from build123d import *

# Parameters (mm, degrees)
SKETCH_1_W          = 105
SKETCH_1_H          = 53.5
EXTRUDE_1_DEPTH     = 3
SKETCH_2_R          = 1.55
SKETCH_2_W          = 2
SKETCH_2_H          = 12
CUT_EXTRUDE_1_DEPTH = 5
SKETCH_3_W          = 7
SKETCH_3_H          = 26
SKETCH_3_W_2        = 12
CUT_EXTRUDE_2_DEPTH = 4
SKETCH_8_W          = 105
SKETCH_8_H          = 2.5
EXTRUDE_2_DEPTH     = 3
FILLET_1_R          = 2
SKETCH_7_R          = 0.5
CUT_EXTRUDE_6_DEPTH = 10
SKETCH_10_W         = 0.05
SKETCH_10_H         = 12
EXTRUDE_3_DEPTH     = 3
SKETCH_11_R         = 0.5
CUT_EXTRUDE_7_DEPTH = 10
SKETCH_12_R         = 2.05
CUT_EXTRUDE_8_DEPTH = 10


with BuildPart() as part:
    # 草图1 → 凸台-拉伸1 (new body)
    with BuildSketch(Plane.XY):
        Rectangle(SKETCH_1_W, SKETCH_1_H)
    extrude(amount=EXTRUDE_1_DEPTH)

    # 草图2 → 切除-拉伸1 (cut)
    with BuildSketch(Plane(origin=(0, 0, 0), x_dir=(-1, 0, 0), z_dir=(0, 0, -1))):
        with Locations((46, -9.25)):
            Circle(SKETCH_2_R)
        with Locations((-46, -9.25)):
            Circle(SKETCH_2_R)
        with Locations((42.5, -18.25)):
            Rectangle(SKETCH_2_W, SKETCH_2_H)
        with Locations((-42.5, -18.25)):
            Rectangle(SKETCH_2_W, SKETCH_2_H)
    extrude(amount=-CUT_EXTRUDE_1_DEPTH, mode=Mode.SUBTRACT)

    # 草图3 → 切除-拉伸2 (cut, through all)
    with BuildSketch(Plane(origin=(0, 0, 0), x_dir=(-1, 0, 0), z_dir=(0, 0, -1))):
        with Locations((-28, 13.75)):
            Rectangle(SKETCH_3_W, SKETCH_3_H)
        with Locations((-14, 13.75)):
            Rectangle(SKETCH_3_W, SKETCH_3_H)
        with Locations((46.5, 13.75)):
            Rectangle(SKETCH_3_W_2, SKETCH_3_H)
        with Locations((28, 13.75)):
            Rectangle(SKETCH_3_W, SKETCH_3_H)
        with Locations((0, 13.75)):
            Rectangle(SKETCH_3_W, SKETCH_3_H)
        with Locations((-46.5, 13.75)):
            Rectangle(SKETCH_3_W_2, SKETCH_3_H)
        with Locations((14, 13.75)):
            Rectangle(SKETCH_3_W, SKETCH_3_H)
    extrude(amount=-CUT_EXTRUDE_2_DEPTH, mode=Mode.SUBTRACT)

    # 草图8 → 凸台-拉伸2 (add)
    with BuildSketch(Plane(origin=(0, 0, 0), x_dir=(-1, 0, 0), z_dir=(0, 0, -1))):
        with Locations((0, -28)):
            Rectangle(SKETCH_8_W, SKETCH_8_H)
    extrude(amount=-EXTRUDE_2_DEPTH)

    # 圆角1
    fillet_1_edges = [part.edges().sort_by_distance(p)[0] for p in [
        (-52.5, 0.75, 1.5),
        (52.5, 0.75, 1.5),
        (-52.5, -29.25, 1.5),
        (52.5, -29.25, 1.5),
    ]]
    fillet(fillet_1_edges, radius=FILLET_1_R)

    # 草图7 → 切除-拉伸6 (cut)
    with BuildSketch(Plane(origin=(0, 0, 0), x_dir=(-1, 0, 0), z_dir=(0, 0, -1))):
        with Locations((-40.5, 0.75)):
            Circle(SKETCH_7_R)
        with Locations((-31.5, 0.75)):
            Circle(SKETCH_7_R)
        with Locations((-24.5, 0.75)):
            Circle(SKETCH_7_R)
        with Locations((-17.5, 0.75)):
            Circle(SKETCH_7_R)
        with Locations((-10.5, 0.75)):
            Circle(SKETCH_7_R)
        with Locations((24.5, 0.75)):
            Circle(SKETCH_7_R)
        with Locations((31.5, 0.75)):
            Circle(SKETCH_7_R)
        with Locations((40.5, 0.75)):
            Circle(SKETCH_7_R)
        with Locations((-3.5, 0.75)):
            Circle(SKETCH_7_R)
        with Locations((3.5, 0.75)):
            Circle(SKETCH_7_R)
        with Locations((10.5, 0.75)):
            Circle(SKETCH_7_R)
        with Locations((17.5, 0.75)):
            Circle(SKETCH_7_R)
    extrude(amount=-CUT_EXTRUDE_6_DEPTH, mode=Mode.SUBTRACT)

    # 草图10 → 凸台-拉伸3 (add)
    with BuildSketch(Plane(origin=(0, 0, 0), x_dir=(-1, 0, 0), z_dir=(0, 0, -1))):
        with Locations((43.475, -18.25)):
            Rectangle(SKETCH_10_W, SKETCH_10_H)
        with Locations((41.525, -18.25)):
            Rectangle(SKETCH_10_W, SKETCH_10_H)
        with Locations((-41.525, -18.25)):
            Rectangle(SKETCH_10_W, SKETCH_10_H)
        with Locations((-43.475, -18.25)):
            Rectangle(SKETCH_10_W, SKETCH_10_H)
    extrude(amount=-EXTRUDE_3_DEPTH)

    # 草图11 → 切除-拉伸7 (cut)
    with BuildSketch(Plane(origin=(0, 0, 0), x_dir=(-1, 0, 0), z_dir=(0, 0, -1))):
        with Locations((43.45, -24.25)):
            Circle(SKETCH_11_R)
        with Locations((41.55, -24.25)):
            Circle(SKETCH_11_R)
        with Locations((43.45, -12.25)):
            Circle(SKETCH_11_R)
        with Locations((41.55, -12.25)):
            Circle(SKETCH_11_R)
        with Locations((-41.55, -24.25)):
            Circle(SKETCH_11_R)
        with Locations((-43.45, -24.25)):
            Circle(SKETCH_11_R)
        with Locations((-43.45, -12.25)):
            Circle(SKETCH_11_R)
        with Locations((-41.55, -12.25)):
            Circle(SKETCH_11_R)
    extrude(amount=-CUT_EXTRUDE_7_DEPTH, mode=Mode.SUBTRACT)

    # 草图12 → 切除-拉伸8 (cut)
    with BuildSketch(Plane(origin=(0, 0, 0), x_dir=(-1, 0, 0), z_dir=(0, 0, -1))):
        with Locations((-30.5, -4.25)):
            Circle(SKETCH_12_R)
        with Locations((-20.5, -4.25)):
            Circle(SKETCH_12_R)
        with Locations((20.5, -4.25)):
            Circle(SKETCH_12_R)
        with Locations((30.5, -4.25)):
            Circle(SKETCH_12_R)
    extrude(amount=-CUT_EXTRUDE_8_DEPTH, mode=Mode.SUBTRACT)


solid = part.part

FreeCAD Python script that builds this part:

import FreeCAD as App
import Part
import Sketcher

V = App.Vector


def edges_at(feature, points):
    """Names of the edges that pass closest to the given points."""
    edges = feature.Shape.Edges
    near = lambda p: min(range(len(edges)), key=lambda i: edges[i].distToShape(Part.Vertex(*p))[0])
    return sorted({f"Edge{near(p) + 1}" for p in points})


def add_polygon(sketch, points):
    """Adds a closed chain of lines whose ends are joined by coincident constraints."""
    first, n = sketch.GeometryCount, len(points)
    for a, b in zip(points, points[1:] + points[:1]):
        sketch.addGeometry(Part.LineSegment(App.Vector(*a, 0), App.Vector(*b, 0)), False)
    for i in range(n):
        sketch.addConstraint(Sketcher.Constraint("Coincident", first + i, 2, first + (i + 1) % n, 1))

doc = App.newDocument("Part")
body = doc.addObject("PartDesign::Body", "Body")

# Sketch on XY plane
sketch1 = body.newObject("Sketcher::SketchObject", "Sketch")
sketch1.AttachmentSupport = (doc.getObject("XY_Plane"), [""])
sketch1.MapMode = "FlatFace"
add_polygon(sketch1, [(-52, 27), (-52, -27), (52, -27), (52, 27)])  # lines 0-3
sketch1.addConstraint(Sketcher.Constraint("Vertical", 0))
sketch1.addConstraint(Sketcher.Constraint("Horizontal", 1))
sketch1.addConstraint(Sketcher.Constraint("Vertical", 2))
sketch1.addConstraint(Sketcher.Constraint("Horizontal", 3))
sketch1.addConstraint(Sketcher.Constraint("Symmetric", 0, 2, 2, 2, -1, 1))
sketch1.addConstraint(Sketcher.Constraint("DistanceX", 1, 1, 1, 2, 105.0))
sketch1.addConstraint(Sketcher.Constraint("DistanceY", 0, 2, 0, 1, 53.5))
pad1 = body.newObject("PartDesign::Pad", "Pad")
pad1.Profile = sketch1
pad1.Length = 3

# Sketch on XY plane
sketch2 = body.newObject("Sketcher::SketchObject", "Sketch001")
sketch2.AttachmentSupport = (doc.getObject("XY_Plane"), [""])
sketch2.MapMode = "FlatFace"
sketch2.addGeometry(Part.Circle(V(-46, -9.2, 0), V(0, 0, 1), 1.6), False)  # 0
sketch2.addGeometry(Part.Circle(V(46, -9.2, 0), V(0, 0, 1), 1.6), False)  # 1
add_polygon(sketch2, [(-41.5, -12.2), (-41.5, -24.2), (-43.5, -24.2), (-43.5, -12.2)])  # lines 2-5
add_polygon(sketch2, [(43.5, -12.2), (43.5, -24.2), (41.5, -24.2), (41.5, -12.2)])  # lines 6-9
sketch2.addConstraint(Sketcher.Constraint("Vertical", 2))
sketch2.addConstraint(Sketcher.Constraint("Horizontal", 3))
sketch2.addConstraint(Sketcher.Constraint("Vertical", 4))
sketch2.addConstraint(Sketcher.Constraint("Horizontal", 5))
sketch2.addConstraint(Sketcher.Constraint("Vertical", 6))
sketch2.addConstraint(Sketcher.Constraint("Horizontal", 7))
sketch2.addConstraint(Sketcher.Constraint("Vertical", 8))
sketch2.addConstraint(Sketcher.Constraint("Horizontal", 9))
sketch2.addConstraint(Sketcher.Constraint("Equal", 0, 1))
sketch2.addConstraint(Sketcher.Constraint("Symmetric", 0, 3, 1, 3, -2))
sketch2.addConstraint(Sketcher.Constraint("Symmetric", 3, 2, 6, 2, -2))
sketch2.addConstraint(Sketcher.Constraint("Symmetric", 5, 2, 8, 2, -2))
sketch2.addConstraint(Sketcher.Constraint("Diameter", 0, 3.1))
sketch2.addConstraint(Sketcher.Constraint("DistanceX", 3, 2, 3, 1, 2.0))
sketch2.addConstraint(Sketcher.Constraint("DistanceY", 2, 2, 2, 1, 12.0))
sketch2.addConstraint(Sketcher.Constraint("DistanceX", 0, 3, -1, 1, 46.0))
sketch2.addConstraint(Sketcher.Constraint("DistanceY", 2, 2, 0, 3, 15.0))
sketch2.addConstraint(Sketcher.Constraint("DistanceX", 2, 2, 6, 2, 85.0))
sketch2.addConstraint(Sketcher.Constraint("DistanceY", 0, 3, -1, 1, 9.25))
pocket1 = body.newObject("PartDesign::Pocket", "Pocket")
pocket1.Profile = sketch2
pocket1.Length = 5
pocket1.Reversed = True

# Sketch on XY plane
sketch3 = body.newObject("Sketcher::SketchObject", "Sketch002")
sketch3.AttachmentSupport = (doc.getObject("XY_Plane"), [""])
sketch3.MapMode = "FlatFace"
add_polygon(sketch3, [(32, 27), (32, 1), (24, 1), (24, 27)])  # lines 0-3
add_polygon(sketch3, [(18, 27), (18, 1), (10, 1), (10, 27)])  # lines 4-7
add_polygon(sketch3, [(-40, 27), (-40, 1), (-52, 1), (-52, 27)])  # lines 8-11
add_polygon(sketch3, [(-24, 27), (-24, 1), (-32, 1), (-32, 27)])  # lines 12-15
add_polygon(sketch3, [(4, 27), (4, 1), (-4, 1), (-4, 27)])  # lines 16-19
add_polygon(sketch3, [(52, 27), (52, 1), (40, 1), (40, 27)])  # lines 20-23
add_polygon(sketch3, [(-10, 27), (-10, 1), (-18, 1), (-18, 27)])  # lines 24-27
sketch3.addConstraint(Sketcher.Constraint("Vertical", 0))
sketch3.addConstraint(Sketcher.Constraint("Horizontal", 1))
sketch3.addConstraint(Sketcher.Constraint("Vertical", 2))
sketch3.addConstraint(Sketcher.Constraint("Horizontal", 3))
sketch3.addConstraint(Sketcher.Constraint("Vertical", 4))
sketch3.addConstraint(Sketcher.Constraint("Horizontal", 5))
sketch3.addConstraint(Sketcher.Constraint("Vertical", 6))
sketch3.addConstraint(Sketcher.Constraint("Horizontal", 7))
sketch3.addConstraint(Sketcher.Constraint("Vertical", 8))
sketch3.addConstraint(Sketcher.Constraint("Horizontal", 9))
sketch3.addConstraint(Sketcher.Constraint("Vertical", 10))
sketch3.addConstraint(Sketcher.Constraint("Horizontal", 11))
sketch3.addConstraint(Sketcher.Constraint("Vertical", 12))
sketch3.addConstraint(Sketcher.Constraint("Horizontal", 13))
sketch3.addConstraint(Sketcher.Constraint("Vertical", 14))
sketch3.addConstraint(Sketcher.Constraint("Horizontal", 15))
sketch3.addConstraint(Sketcher.Constraint("Vertical", 16))
sketch3.addConstraint(Sketcher.Constraint("Horizontal", 17))
sketch3.addConstraint(Sketcher.Constraint("Vertical", 18))
sketch3.addConstraint(Sketcher.Constraint("Horizontal", 19))
sketch3.addConstraint(Sketcher.Constraint("Vertical", 20))
sketch3.addConstraint(Sketcher.Constraint("Horizontal", 21))
sketch3.addConstraint(Sketcher.Constraint("Vertical", 22))
sketch3.addConstraint(Sketcher.Constraint("Horizontal", 23))
sketch3.addConstraint(Sketcher.Constraint("Vertical", 24))
sketch3.addConstraint(Sketcher.Constraint("Horizontal", 25))
sketch3.addConstraint(Sketcher.Constraint("Vertical", 26))
sketch3.addConstraint(Sketcher.Constraint("Horizontal", 27))
sketch3.addConstraint(Sketcher.Constraint("Symmetric", 1, 2, 12, 2, -2))
sketch3.addConstraint(Sketcher.Constraint("Symmetric", 3, 2, 14, 2, -2))
sketch3.addConstraint(Sketcher.Constraint("Symmetric", 9, 2, 20, 2, -2))
sketch3.addConstraint(Sketcher.Constraint("Symmetric", 11, 2, 22, 2, -2))
sketch3.addConstraint(Sketcher.Constraint("Symmetric", 5, 2, 24, 2, -2))
sketch3.addConstraint(Sketcher.Constraint("Symmetric", 7, 2, 26, 2, -2))
sketch3.addConstraint(Sketcher.Constraint("Horizontal", 1, 2, 4, 2))
sketch3.addConstraint(Sketcher.Constraint("Horizontal", 3, 2, 6, 2))
sketch3.addConstraint(Sketcher.Constraint("Horizontal", 5, 2, 8, 2))
sketch3.addConstraint(Sketcher.Constraint("Horizontal", 7, 2, 10, 2))
sketch3.addConstraint(Sketcher.Constraint("Horizontal", 13, 2, 16, 2))
sketch3.addConstraint(Sketcher.Constraint("Horizontal", 15, 2, 18, 2))
sketch3.addConstraint(Sketcher.Constraint("Equal", 3, 5))
sketch3.addConstraint(Sketcher.Constraint("Equal", 15, 17))
sketch3.addConstraint(Sketcher.Constraint("DistanceX", 1, 2, 1, 1, 7.0))
sketch3.addConstraint(Sketcher.Constraint("DistanceX", 9, 2, 9, 1, 12.0))
sketch3.addConstraint(Sketcher.Constraint("DistanceY", 0, 2, 0, 1, 26.0))
sketch3.addConstraint(Sketcher.Constraint("DistanceX", 4, 2, 1, 2, 7.0))
sketch3.addConstraint(Sketcher.Constraint("DistanceX", 8, 2, 5, 2, 51.0))
sketch3.addConstraint(Sketcher.Constraint("DistanceX", 8, 2, 12, 2, 16.0))
sketch3.addConstraint(Sketcher.Constraint("DistanceX", 16, 2, 5, 2, 7.0))
sketch3.addConstraint(Sketcher.Constraint("DistanceY", -1, 1, 0, 2, 0.75))
pocket2 = body.newObject("PartDesign::Pocket", "Pocket001")
pocket2.Profile = sketch3
pocket2.Type = "ThroughAll"
pocket2.Reversed = True

# Sketch on XY plane
sketch4 = body.newObject("Sketcher::SketchObject", "Sketch003")
sketch4.AttachmentSupport = (doc.getObject("XY_Plane"), [""])
sketch4.MapMode = "FlatFace"
add_polygon(sketch4, [(52.5, -26.8), (52.5, -29.2), (-52.5, -29.2), (-52.5, -26.8)])  # lines 0-3
sketch4.addConstraint(Sketcher.Constraint("Vertical", 0))
sketch4.addConstraint(Sketcher.Constraint("Horizontal", 1))
sketch4.addConstraint(Sketcher.Constraint("Vertical", 2))
sketch4.addConstraint(Sketcher.Constraint("Horizontal", 3))
sketch4.addConstraint(Sketcher.Constraint("DistanceX", 1, 2, 1, 1, 105.0))
sketch4.addConstraint(Sketcher.Constraint("DistanceY", 0, 2, 0, 1, 2.5))
sketch4.addConstraint(Sketcher.Constraint("DistanceX", -1, 1, 0, 2, 52.5))
sketch4.addConstraint(Sketcher.Constraint("DistanceY", 0, 2, -1, 1, 29.25))
pad2 = body.newObject("PartDesign::Pad", "Pad001")
pad2.Profile = sketch4
pad2.Length = 3
doc.recompute()

fillet = body.newObject("PartDesign::Fillet", "Fillet")
fillet.Base = (pad2, edges_at(pad2, [
    (-52.5, 0.75, 1.5),
    (52.5, 0.75, 1.5),
    (-52.5, -29.25, 1.5),
    (52.5, -29.25, 1.5),
]))
fillet.Radius = 2

# Sketch on XY plane
sketch5 = body.newObject("Sketcher::SketchObject", "Sketch004")
sketch5.AttachmentSupport = (doc.getObject("XY_Plane"), [""])
sketch5.MapMode = "FlatFace"
sketch5.addGeometry(Part.Circle(V(40.5, 0.8, 0), V(0, 0, 1), 0.5), False)
sketch5.addGeometry(Part.Circle(V(31.5, 0.8, 0), V(0, 0, 1), 0.5), False)
sketch5.addGeometry(Part.Circle(V(24.5, 0.8, 0), V(0, 0, 1), 0.5), False)
sketch5.addGeometry(Part.Circle(V(17.5, 0.8, 0), V(0, 0, 1), 0.5), False)
sketch5.addGeometry(Part.Circle(V(10.5, 0.8, 0), V(0, 0, 1), 0.5), False)
sketch5.addGeometry(Part.Circle(V(-24.5, 0.8, 0), V(0, 0, 1), 0.5), False)
sketch5.addGeometry(Part.Circle(V(-31.5, 0.8, 0), V(0, 0, 1), 0.5), False)
sketch5.addGeometry(Part.Circle(V(-40.5, 0.8, 0), V(0, 0, 1), 0.5), False)
sketch5.addGeometry(Part.Circle(V(3.5, 0.8, 0), V(0, 0, 1), 0.5), False)
sketch5.addGeometry(Part.Circle(V(-3.5, 0.8, 0), V(0, 0, 1), 0.5), False)
sketch5.addGeometry(Part.Circle(V(-10.5, 0.8, 0), V(0, 0, 1), 0.5), False)
sketch5.addGeometry(Part.Circle(V(-17.5, 0.8, 0), V(0, 0, 1), 0.5), False)
sketch5.addConstraint(Sketcher.Constraint("Equal", 0, 1))
sketch5.addConstraint(Sketcher.Constraint("Equal", 1, 2))
sketch5.addConstraint(Sketcher.Constraint("Equal", 2, 3))
sketch5.addConstraint(Sketcher.Constraint("Equal", 3, 4))
sketch5.addConstraint(Sketcher.Constraint("Equal", 4, 5))
sketch5.addConstraint(Sketcher.Constraint("Equal", 5, 6))
sketch5.addConstraint(Sketcher.Constraint("Equal", 6, 7))
sketch5.addConstraint(Sketcher.Constraint("Equal", 7, 8))
sketch5.addConstraint(Sketcher.Constraint("Equal", 8, 9))
sketch5.addConstraint(Sketcher.Constraint("Equal", 9, 10))
sketch5.addConstraint(Sketcher.Constraint("Equal", 10, 11))
sketch5.addConstraint(Sketcher.Constraint("Symmetric", 2, 3, 5, 3, -2))
sketch5.addConstraint(Sketcher.Constraint("Symmetric", 1, 3, 6, 3, -2))
sketch5.addConstraint(Sketcher.Constraint("Symmetric", 0, 3, 7, 3, -2))
sketch5.addConstraint(Sketcher.Constraint("Symmetric", 8, 3, 9, 3, -2))
sketch5.addConstraint(Sketcher.Constraint("Symmetric", 4, 3, 10, 3, -2))
sketch5.addConstraint(Sketcher.Constraint("Symmetric", 3, 3, 11, 3, -2))
sketch5.addConstraint(Sketcher.Constraint("Horizontal", 0, 3, 1, 3))
sketch5.addConstraint(Sketcher.Constraint("Horizontal", 1, 3, 2, 3))
sketch5.addConstraint(Sketcher.Constraint("Horizontal", 2, 3, 3, 3))
sketch5.addConstraint(Sketcher.Constraint("Horizontal", 3, 3, 4, 3))
sketch5.addConstraint(Sketcher.Constraint("Horizontal", 7, 3, 8, 3))
sketch5.addConstraint(Sketcher.Constraint("Diameter", 0, 1.0))
sketch5.addConstraint(Sketcher.Constraint("DistanceX", 1, 3, 0, 3, 9.0))
sketch5.addConstraint(Sketcher.Constraint("DistanceX", 2, 3, 1, 3, 7.0))
sketch5.addConstraint(Sketcher.Constraint("DistanceX", 3, 3, 2, 3, 7.0))
sketch5.addConstraint(Sketcher.Constraint("DistanceX", 4, 3, 3, 3, 7.0))
sketch5.addConstraint(Sketcher.Constraint("DistanceX", 5, 3, 4, 3, 35.0))
sketch5.addConstraint(Sketcher.Constraint("DistanceX", 8, 3, 4, 3, 7.0))
sketch5.addConstraint(Sketcher.Constraint("DistanceY", -1, 1, 0, 3, 0.75))
pocket3 = body.newObject("PartDesign::Pocket", "Pocket002")
pocket3.Profile = sketch5
pocket3.Length = 10
pocket3.Reversed = True

# Sketch on XY plane
sketch6 = body.newObject("Sketcher::SketchObject", "Sketch005")
sketch6.AttachmentSupport = (doc.getObject("XY_Plane"), [""])
sketch6.MapMode = "FlatFace"
add_polygon(sketch6, [(-43.45, -12.25), (-43.45, -24.25), (-43.5, -24.25), (-43.5, -12.25)])  # lines 0-3
add_polygon(sketch6, [(-41.5, -12.25), (-41.5, -24.25), (-41.55, -24.25), (-41.55, -12.25)])  # lines 4-7
add_polygon(sketch6, [(41.55, -12.25), (41.55, -24.25), (41.5, -24.25), (41.5, -12.25)])  # lines 8-11
add_polygon(sketch6, [(43.5, -12.25), (43.5, -24.25), (43.45, -24.25), (43.45, -12.25)])  # lines 12-15
sketch6.addConstraint(Sketcher.Constraint("Vertical", 0))
sketch6.addConstraint(Sketcher.Constraint("Horizontal", 1))
sketch6.addConstraint(Sketcher.Constraint("Vertical", 2))
sketch6.addConstraint(Sketcher.Constraint("Horizontal", 3))
sketch6.addConstraint(Sketcher.Constraint("Vertical", 4))
sketch6.addConstraint(Sketcher.Constraint("Horizontal", 5))
sketch6.addConstraint(Sketcher.Constraint("Vertical", 6))
sketch6.addConstraint(Sketcher.Constraint("Horizontal", 7))
sketch6.addConstraint(Sketcher.Constraint("Vertical", 8))
sketch6.addConstraint(Sketcher.Constraint("Horizontal", 9))
sketch6.addConstraint(Sketcher.Constraint("Vertical", 10))
sketch6.addConstraint(Sketcher.Constraint("Horizontal", 11))
sketch6.addConstraint(Sketcher.Constraint("Vertical", 12))
sketch6.addConstraint(Sketcher.Constraint("Horizontal", 13))
sketch6.addConstraint(Sketcher.Constraint("Vertical", 14))
sketch6.addConstraint(Sketcher.Constraint("Horizontal", 15))
sketch6.addConstraint(Sketcher.Constraint("Symmetric", 5, 2, 8, 2, -2))
sketch6.addConstraint(Sketcher.Constraint("Symmetric", 7, 2, 10, 2, -2))
sketch6.addConstraint(Sketcher.Constraint("Symmetric", 1, 2, 12, 2, -2))
sketch6.addConstraint(Sketcher.Constraint("Symmetric", 3, 2, 14, 2, -2))
sketch6.addConstraint(Sketcher.Constraint("Horizontal", 1, 2, 4, 2))
sketch6.addConstraint(Sketcher.Constraint("Horizontal", 3, 2, 6, 2))
sketch6.addConstraint(Sketcher.Constraint("Equal", 3, 5))
sketch6.addConstraint(Sketcher.Constraint("DistanceY", 0, 2, 0, 1, 12.0))
sketch6.addConstraint(Sketcher.Constraint("DistanceX", 1, 2, 4, 2, 2.0))
sketch6.addConstraint(Sketcher.Constraint("DistanceX", 0, 2, 8, 2, 85.0))
sketch6.addConstraint(Sketcher.Constraint("DistanceX", 1, 2, 1, 1, 0.05))
sketch6.addConstraint(Sketcher.Constraint("DistanceY", 0, 2, -1, 1, 24.25))
pad3 = body.newObject("PartDesign::Pad", "Pad002")
pad3.Profile = sketch6
pad3.Length = 3

# Sketch on XY plane
sketch7 = body.newObject("Sketcher::SketchObject", "Sketch006")
sketch7.AttachmentSupport = (doc.getObject("XY_Plane"), [""])
sketch7.MapMode = "FlatFace"
sketch7.addGeometry(Part.Circle(V(-43.5, -24.2, 0), V(0, 0, 1), 0.5), False)
sketch7.addGeometry(Part.Circle(V(-41.5, -24.2, 0), V(0, 0, 1), 0.5), False)
sketch7.addGeometry(Part.Circle(V(-43.5, -12.2, 0), V(0, 0, 1), 0.5), False)
sketch7.addGeometry(Part.Circle(V(-41.5, -12.2, 0), V(0, 0, 1), 0.5), False)
sketch7.addGeometry(Part.Circle(V(41.5, -24.2, 0), V(0, 0, 1), 0.5), False)
sketch7.addGeometry(Part.Circle(V(43.5, -24.2, 0), V(0, 0, 1), 0.5), False)
sketch7.addGeometry(Part.Circle(V(43.5, -12.2, 0), V(0, 0, 1), 0.5), False)
sketch7.addGeometry(Part.Circle(V(41.5, -12.2, 0), V(0, 0, 1), 0.5), False)
sketch7.addConstraint(Sketcher.Constraint("Equal", 0, 1))
sketch7.addConstraint(Sketcher.Constraint("Equal", 1, 2))
sketch7.addConstraint(Sketcher.Constraint("Equal", 2, 3))
sketch7.addConstraint(Sketcher.Constraint("Equal", 3, 4))
sketch7.addConstraint(Sketcher.Constraint("Equal", 4, 5))
sketch7.addConstraint(Sketcher.Constraint("Equal", 5, 6))
sketch7.addConstraint(Sketcher.Constraint("Equal", 6, 7))
sketch7.addConstraint(Sketcher.Constraint("Symmetric", 1, 3, 4, 3, -2))
sketch7.addConstraint(Sketcher.Constraint("Symmetric", 0, 3, 5, 3, -2))
sketch7.addConstraint(Sketcher.Constraint("Symmetric", 2, 3, 6, 3, -2))
sketch7.addConstraint(Sketcher.Constraint("Symmetric", 3, 3, 7, 3, -2))
sketch7.addConstraint(Sketcher.Constraint("Horizontal", 0, 3, 1, 3))
sketch7.addConstraint(Sketcher.Constraint("Horizontal", 2, 3, 3, 3))
sketch7.addConstraint(Sketcher.Constraint("Vertical", 0, 3, 2, 3))
sketch7.addConstraint(Sketcher.Constraint("Vertical", 1, 3, 3, 3))
sketch7.addConstraint(Sketcher.Constraint("Diameter", 0, 1.0))
sketch7.addConstraint(Sketcher.Constraint("DistanceY", 0, 3, 2, 3, 12.0))
sketch7.addConstraint(Sketcher.Constraint("DistanceX", 0, 3, 4, 3, 85.0))
sketch7.addConstraint(Sketcher.Constraint("DistanceX", 0, 3, 1, 3, 1.9))
sketch7.addConstraint(Sketcher.Constraint("DistanceY", 0, 3, -1, 1, 24.25))
pocket4 = body.newObject("PartDesign::Pocket", "Pocket003")
pocket4.Profile = sketch7
pocket4.Length = 10
pocket4.Reversed = True

# Sketch on XY plane
sketch8 = body.newObject("Sketcher::SketchObject", "Sketch007")
sketch8.AttachmentSupport = (doc.getObject("XY_Plane"), [""])
sketch8.MapMode = "FlatFace"
sketch8.addGeometry(Part.Circle(V(30.5, -4.2, 0), V(0, 0, 1), 2), False)
sketch8.addGeometry(Part.Circle(V(20.5, -4.2, 0), V(0, 0, 1), 2), False)
sketch8.addGeometry(Part.Circle(V(-20.5, -4.2, 0), V(0, 0, 1), 2), False)
sketch8.addGeometry(Part.Circle(V(-30.5, -4.2, 0), V(0, 0, 1), 2), False)
sketch8.addConstraint(Sketcher.Constraint("Equal", 0, 1))
sketch8.addConstraint(Sketcher.Constraint("Equal", 1, 2))
sketch8.addConstraint(Sketcher.Constraint("Equal", 2, 3))
sketch8.addConstraint(Sketcher.Constraint("Symmetric", 1, 3, 2, 3, -2))
sketch8.addConstraint(Sketcher.Constraint("Symmetric", 0, 3, 3, 3, -2))
sketch8.addConstraint(Sketcher.Constraint("Horizontal", 0, 3, 1, 3))
sketch8.addConstraint(Sketcher.Constraint("Diameter", 0, 4.1))
sketch8.addConstraint(Sketcher.Constraint("DistanceX", 1, 3, 0, 3, 10.0))
sketch8.addConstraint(Sketcher.Constraint("DistanceX", 2, 3, 1, 3, 41.0))
sketch8.addConstraint(Sketcher.Constraint("DistanceY", 0, 3, -1, 1, 4.25))
pocket5 = body.newObject("PartDesign::Pocket", "Pocket004")
pocket5.Profile = sketch8
pocket5.Length = 10
pocket5.Reversed = True

doc.recompute()
